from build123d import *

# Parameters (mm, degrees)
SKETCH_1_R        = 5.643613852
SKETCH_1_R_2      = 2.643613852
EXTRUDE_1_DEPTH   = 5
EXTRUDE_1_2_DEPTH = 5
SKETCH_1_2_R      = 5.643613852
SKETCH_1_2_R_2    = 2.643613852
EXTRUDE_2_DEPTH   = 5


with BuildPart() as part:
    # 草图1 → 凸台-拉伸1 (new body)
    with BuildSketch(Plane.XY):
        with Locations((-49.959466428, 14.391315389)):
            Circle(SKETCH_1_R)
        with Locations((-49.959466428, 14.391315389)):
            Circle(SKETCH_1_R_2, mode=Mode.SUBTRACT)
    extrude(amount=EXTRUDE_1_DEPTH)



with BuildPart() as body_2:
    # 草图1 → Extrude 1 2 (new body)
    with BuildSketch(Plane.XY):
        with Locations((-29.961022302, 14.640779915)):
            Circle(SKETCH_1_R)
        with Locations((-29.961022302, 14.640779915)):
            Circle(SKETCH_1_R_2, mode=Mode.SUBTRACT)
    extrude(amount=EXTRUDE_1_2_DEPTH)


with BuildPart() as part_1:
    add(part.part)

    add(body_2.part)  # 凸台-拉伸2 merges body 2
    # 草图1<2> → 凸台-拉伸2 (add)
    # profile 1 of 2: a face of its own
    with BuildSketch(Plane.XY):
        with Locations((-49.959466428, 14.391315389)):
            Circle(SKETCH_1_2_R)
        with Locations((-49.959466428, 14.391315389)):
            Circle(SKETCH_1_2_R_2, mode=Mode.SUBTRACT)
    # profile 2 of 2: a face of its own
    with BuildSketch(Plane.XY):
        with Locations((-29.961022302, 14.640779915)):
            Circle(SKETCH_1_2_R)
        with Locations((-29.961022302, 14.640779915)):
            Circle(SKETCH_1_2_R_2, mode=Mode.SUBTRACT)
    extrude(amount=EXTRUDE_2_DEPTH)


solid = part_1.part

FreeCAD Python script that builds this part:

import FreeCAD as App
import Part
import Sketcher
from FreeCAD import Vector

doc = App.newDocument("Part")
body = doc.addObject("PartDesign::Body", "Body")

# Sketch on XY plane
sketch1 = body.newObject("Sketcher::SketchObject", "Sketch")
sketch1.AttachmentSupport = (doc.getObject("XY_Plane"), [""])
sketch1.MapMode = "FlatFace"
sketch1.addGeometry([
    Part.Circle(Vector(-50, 14.4, 0), Vector(0, 0, 1), 5.6),
    Part.Circle(Vector(-50, 14.4, 0), Vector(0, 0, 1), 2.6),
], False)
sketch1.addConstraint([
    Sketcher.Constraint("Coincident", 1, 3, 0, 3),
    Sketcher.Constraint("Diameter", 0, 11.287228),
    Sketcher.Constraint("Diameter", 1, 5.287228),
    Sketcher.Constraint("DistanceX", 0, 3, -1, 1, 49.959466),
    Sketcher.Constraint("DistanceY", -1, 1, 0, 3, 14.391315),
])
pad1 = body.newObject("PartDesign::Pad", "Pad")
pad1.Profile = sketch1
pad1.Length = 5
body2 = doc.addObject("PartDesign::Body", "Body001")

# Sketch on XY plane
sketch2 = body2.newObject("Sketcher::SketchObject", "Sketch001")
sketch2.AttachmentSupport = (doc.getObject("XY_Plane001"), [""])
sketch2.MapMode = "FlatFace"
sketch2.addGeometry([
    Part.Circle(Vector(-30, 14.6, 0), Vector(0, 0, 1), 5.6),
    Part.Circle(Vector(-30, 14.6, 0), Vector(0, 0, 1), 2.6),
], False)
sketch2.addConstraint([
    Sketcher.Constraint("Coincident", 1, 3, 0, 3),
    Sketcher.Constraint("Diameter", 0, 11.287228),
    Sketcher.Constraint("Diameter", 1, 5.287228),
    Sketcher.Constraint("DistanceY", -1, 1, 0, 3, 14.64078),
    Sketcher.Constraint("DistanceX", 0, 3, -1, 1, 29.961022),
])
pad2 = body2.newObject("PartDesign::Pad", "Pad001")
pad2.Profile = sketch2
pad2.Length = 5
body.AllowCompound = True
doc.recompute()

boolean = body.newObject("PartDesign::Boolean", "Boolean")
boolean.Type = "Fuse"
boolean.addObjects([body2])

# Sketch on XY plane
sketch3 = body.newObject("Sketcher::SketchObject", "Sketch002")
sketch3.AttachmentSupport = (doc.getObject("XY_Plane"), [""])
sketch3.MapMode = "FlatFace"
sketch3.addGeometry([
    Part.Circle(Vector(-50, 14.4, 0), Vector(0, 0, 1), 5.6),
    Part.Circle(Vector(-50, 14.4, 0), Vector(0, 0, 1), 2.6),
    Part.Circle(Vector(-30, 14.6, 0), Vector(0, 0, 1), 5.6),
    Part.Circle(Vector(-30, 14.6, 0), Vector(0, 0, 1), 2.6),
], False)
sketch3.addConstraint([
    Sketcher.Constraint("Coincident", 1, 3, 0, 3),
    Sketcher.Constraint("Coincident", 3, 3, 2, 3),
    Sketcher.Constraint("Equal", 0, 2),
    Sketcher.Constraint("Equal", 1, 3),
    Sketcher.Constraint("Diameter", 0, 11.287228),
    Sketcher.Constraint("Diameter", 1, 5.287228),
    Sketcher.Constraint("DistanceY", -1, 1, 2, 3, 14.64078),
    Sketcher.Constraint("DistanceX", 0, 3, -1, 1, 49.959466),
    Sketcher.Constraint("DistanceY", -1, 1, 0, 3, 14.391315),
    Sketcher.Constraint("DistanceX", 2, 3, -1, 1, 29.961022),
])
pad3 = body.newObject("PartDesign::Pad", "Pad002")
pad3.Profile = sketch3
pad3.Length = 5

doc.recompute()
